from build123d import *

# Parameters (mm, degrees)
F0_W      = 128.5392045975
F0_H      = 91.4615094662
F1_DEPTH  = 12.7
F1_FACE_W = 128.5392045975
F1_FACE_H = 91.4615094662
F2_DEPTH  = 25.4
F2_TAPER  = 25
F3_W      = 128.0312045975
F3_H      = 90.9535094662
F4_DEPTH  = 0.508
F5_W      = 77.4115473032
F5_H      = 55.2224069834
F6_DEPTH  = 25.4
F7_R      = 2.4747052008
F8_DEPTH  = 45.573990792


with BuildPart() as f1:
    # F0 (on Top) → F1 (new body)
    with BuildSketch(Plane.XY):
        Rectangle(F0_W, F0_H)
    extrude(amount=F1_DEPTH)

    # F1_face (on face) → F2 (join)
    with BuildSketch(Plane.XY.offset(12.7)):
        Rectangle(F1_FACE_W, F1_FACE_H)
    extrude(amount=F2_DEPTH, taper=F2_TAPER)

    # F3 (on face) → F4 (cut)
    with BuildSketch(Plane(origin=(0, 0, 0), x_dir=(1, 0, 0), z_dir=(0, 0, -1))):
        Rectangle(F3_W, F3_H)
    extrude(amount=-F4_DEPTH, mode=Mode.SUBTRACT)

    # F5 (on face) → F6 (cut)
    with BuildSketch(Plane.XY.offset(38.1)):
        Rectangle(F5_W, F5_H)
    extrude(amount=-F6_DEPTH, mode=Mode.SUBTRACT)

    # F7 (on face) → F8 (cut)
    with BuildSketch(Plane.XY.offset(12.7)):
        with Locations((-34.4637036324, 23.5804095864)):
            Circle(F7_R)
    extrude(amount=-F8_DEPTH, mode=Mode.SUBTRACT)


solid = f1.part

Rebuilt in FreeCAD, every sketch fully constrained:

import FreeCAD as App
import Part
import Sketcher
from FreeCAD import Vector
Q = App.Units.Quantity


def add_polygon(sketch, points):
    """Adds a closed chain of lines whose ends are joined by coincident constraints."""
    first, n = sketch.GeometryCount, len(points)
    for a, b in zip(points, points[1:] + points[:1]):
        sketch.addGeometry(Part.LineSegment(App.Vector(*a, 0), App.Vector(*b, 0)), False)
    for i in range(n):
        sketch.addConstraint(Sketcher.Constraint("Coincident", first + i, 2, first + (i + 1) % n, 1))

doc = App.newDocument("Part")
params = doc.addObject("Spreadsheet::Sheet", "Params")
for row, (alias, value) in enumerate([
    ("pad1_length", "0.5 in"),
    ("pad2_length", "1 in"),
    ("pad2_taper", "-25 deg"),
    ("pocket1_length", "0.02 in"),
    ("pocket2_length", "1 in"),
    ("pocket3_length", "45.573991 mm"),
], start=1):
    params.set(f"A{row}", alias)
    params.set(f"B{row}", "=" + value)
    params.setAlias(f"B{row}", alias)

body = doc.addObject("PartDesign::Body", "Body")

# Sketch on XY plane
sketch1 = body.newObject("Sketcher::SketchObject", "Sketch")
sketch1.AttachmentSupport = (doc.getObject("XY_Plane"), [""])
sketch1.MapMode = "FlatFace"
add_polygon(sketch1, [(-64, 46), (-64, -46), (64, -46), (64, 46)])  # lines 0-3
sketch1.addConstraint([
    Sketcher.Constraint("Vertical", 0),
    Sketcher.Constraint("Horizontal", 1),
    Sketcher.Constraint("Vertical", 2),
    Sketcher.Constraint("Horizontal", 3),
    Sketcher.Constraint("Symmetric", 0, 2, 2, 2, -1, 1),
    Sketcher.Constraint("DistanceY", 0, 2, 0, 1, Q("91.461509 mm")),
    Sketcher.Constraint("DistanceX", 1, 1, 1, 2, Q("128.539205 mm")),
])
pad1 = body.newObject("PartDesign::Pad", "Pad")
pad1.Profile = sketch1
pad1.setExpression("Length", "Params.pad1_length")

# Sketch on XY plane
sketch2 = body.newObject("Sketcher::SketchObject", "Sketch001")
sketch2.AttachmentSupport = (doc.getObject("XY_Plane"), [""])
sketch2.MapMode = "FlatFace"
sketch2.AttachmentOffset = App.Placement(Vector(0, 0, 0.5 * 25.4), App.Rotation())
add_polygon(sketch2, [(-64, 46), (-64, -46), (64, -46), (64, 46)])  # lines 0-3
sketch2.addConstraint([
    Sketcher.Constraint("Vertical", 0),
    Sketcher.Constraint("Horizontal", 1),
    Sketcher.Constraint("Vertical", 2),
    Sketcher.Constraint("Horizontal", 3),
    Sketcher.Constraint("Symmetric", 0, 2, 2, 2, -1, 1),
    Sketcher.Constraint("DistanceY", 0, 2, 0, 1, Q("91.461509 mm")),
    Sketcher.Constraint("DistanceX", 1, 1, 1, 2, Q("128.539205 mm")),
])
pad2 = body.newObject("PartDesign::Pad", "Pad001")
pad2.Profile = sketch2
pad2.setExpression("Length", "Params.pad2_length")
pad2.setExpression("TaperAngle", "Params.pad2_taper")

# Sketch on XY plane
sketch3 = body.newObject("Sketcher::SketchObject", "Sketch002")
sketch3.AttachmentSupport = (doc.getObject("XY_Plane"), [""])
sketch3.MapMode = "FlatFace"
add_polygon(sketch3, [(-64, -45), (-64, 45), (64, 45), (64, -45)])  # lines 0-3
sketch3.addConstraint([
    Sketcher.Constraint("Vertical", 0),
    Sketcher.Constraint("Horizontal", 1),
    Sketcher.Constraint("Vertical", 2),
    Sketcher.Constraint("Horizontal", 3),
    Sketcher.Constraint("Symmetric", 0, 2, 2, 2, -1, 1),
    Sketcher.Constraint("DistanceY", 0, 1, 0, 2, Q("90.953509 mm")),
    Sketcher.Constraint("DistanceX", 1, 1, 1, 2, Q("128.031205 mm")),
])
pocket1 = body.newObject("PartDesign::Pocket", "Pocket")
pocket1.Profile = sketch3
pocket1.setExpression("Length", "Params.pocket1_length")
pocket1.Reversed = True

# Sketch on XY plane
sketch4 = body.newObject("Sketcher::SketchObject", "Sketch003")
sketch4.AttachmentSupport = (doc.getObject("XY_Plane"), [""])
sketch4.MapMode = "FlatFace"
sketch4.AttachmentOffset = App.Placement(Vector(0, 0, 1.5 * 25.4), App.Rotation())
add_polygon(sketch4, [(-39, 28), (-39, -28), (39, -28), (39, 28)])  # lines 0-3
sketch4.addConstraint([
    Sketcher.Constraint("Vertical", 0),
    Sketcher.Constraint("Horizontal", 1),
    Sketcher.Constraint("Vertical", 2),
    Sketcher.Constraint("Horizontal", 3),
    Sketcher.Constraint("Symmetric", 0, 2, 2, 2, -1, 1),
    Sketcher.Constraint("DistanceX", 1, 1, 1, 2, Q("77.411547 mm")),
    Sketcher.Constraint("DistanceY", 0, 2, 0, 1, Q("55.222407 mm")),
])
pocket2 = body.newObject("PartDesign::Pocket", "Pocket001")
pocket2.Profile = sketch4
pocket2.setExpression("Length", "Params.pocket2_length")

# Sketch on XY plane
sketch5 = body.newObject("Sketcher::SketchObject", "Sketch004")
sketch5.AttachmentSupport = (doc.getObject("XY_Plane"), [""])
sketch5.MapMode = "FlatFace"
sketch5.AttachmentOffset = App.Placement(Vector(0, 0, 0.5 * 25.4), App.Rotation())
sketch5.addGeometry(Part.Circle(Vector(-34.5, 23.6, 0), Vector(0, 0, 1), 2.5), False)
sketch5.addConstraint([
    Sketcher.Constraint("Diameter", 0, Q("4.94941 mm")),
    Sketcher.Constraint("DistanceY", -1, 1, 0, 3, Q("23.58041 mm")),
    Sketcher.Constraint("DistanceX", 0, 3, -1, 1, Q("34.463704 mm")),
])
pocket3 = body.newObject("PartDesign::Pocket", "Pocket002")
pocket3.Profile = sketch5
pocket3.setExpression("Length", "Params.pocket3_length")

doc.recompute()
